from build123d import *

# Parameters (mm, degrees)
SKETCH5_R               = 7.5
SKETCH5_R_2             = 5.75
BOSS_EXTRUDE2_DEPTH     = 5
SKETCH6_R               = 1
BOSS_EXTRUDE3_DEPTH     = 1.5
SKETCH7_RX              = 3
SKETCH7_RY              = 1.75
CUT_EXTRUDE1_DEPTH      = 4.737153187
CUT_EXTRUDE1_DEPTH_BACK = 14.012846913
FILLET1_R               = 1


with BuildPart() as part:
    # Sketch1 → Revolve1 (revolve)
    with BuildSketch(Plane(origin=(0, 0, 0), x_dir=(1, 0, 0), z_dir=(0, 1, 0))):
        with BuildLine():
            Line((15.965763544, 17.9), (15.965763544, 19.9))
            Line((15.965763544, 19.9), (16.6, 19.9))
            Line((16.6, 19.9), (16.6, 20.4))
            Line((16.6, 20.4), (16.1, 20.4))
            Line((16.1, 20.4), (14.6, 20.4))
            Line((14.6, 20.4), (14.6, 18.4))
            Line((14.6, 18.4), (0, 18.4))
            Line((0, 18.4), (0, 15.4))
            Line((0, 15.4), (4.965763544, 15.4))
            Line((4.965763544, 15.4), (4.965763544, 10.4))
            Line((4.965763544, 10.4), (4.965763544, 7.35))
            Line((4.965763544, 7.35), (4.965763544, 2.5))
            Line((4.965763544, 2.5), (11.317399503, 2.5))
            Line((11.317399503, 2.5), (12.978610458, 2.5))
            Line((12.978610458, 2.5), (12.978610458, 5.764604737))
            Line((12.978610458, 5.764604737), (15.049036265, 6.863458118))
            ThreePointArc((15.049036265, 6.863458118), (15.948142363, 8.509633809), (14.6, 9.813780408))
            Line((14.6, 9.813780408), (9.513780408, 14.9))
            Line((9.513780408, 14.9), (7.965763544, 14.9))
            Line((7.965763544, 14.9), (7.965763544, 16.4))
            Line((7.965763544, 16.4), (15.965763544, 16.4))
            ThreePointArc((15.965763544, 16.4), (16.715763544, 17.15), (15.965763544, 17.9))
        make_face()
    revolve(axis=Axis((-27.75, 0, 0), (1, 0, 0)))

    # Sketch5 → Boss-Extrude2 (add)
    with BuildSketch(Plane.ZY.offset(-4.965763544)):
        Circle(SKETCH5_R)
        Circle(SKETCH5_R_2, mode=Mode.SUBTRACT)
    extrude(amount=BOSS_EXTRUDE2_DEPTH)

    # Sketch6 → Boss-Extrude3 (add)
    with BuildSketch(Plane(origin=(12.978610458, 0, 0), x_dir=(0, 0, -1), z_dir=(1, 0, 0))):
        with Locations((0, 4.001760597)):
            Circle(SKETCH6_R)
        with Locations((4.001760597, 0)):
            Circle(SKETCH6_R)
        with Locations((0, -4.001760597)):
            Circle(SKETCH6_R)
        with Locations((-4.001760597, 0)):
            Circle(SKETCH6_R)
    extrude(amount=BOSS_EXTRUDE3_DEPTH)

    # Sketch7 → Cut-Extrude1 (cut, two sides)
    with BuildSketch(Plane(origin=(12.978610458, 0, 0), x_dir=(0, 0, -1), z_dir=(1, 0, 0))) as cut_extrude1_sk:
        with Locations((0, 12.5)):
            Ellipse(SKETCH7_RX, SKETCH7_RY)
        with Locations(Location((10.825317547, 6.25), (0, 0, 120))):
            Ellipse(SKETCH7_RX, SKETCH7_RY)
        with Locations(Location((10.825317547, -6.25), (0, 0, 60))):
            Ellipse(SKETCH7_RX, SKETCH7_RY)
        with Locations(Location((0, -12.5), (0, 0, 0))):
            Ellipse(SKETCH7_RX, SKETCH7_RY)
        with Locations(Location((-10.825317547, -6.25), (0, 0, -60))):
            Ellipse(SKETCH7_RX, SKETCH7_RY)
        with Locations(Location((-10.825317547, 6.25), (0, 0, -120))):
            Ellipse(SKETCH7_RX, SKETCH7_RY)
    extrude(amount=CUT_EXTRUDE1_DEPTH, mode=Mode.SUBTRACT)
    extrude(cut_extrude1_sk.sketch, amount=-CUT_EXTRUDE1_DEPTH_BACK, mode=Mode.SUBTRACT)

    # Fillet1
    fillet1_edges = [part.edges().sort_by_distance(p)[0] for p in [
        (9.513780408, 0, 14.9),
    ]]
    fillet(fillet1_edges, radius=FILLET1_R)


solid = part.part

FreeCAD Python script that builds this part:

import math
import FreeCAD as App
import Part
import Sketcher

V = App.Vector
Q = App.Units.Quantity


def edges_at(feature, points):
    """Names of the edges that pass closest to the given points."""
    edges = feature.Shape.Edges
    near = lambda p: min(range(len(edges)), key=lambda i: edges[i].distToShape(Part.Vertex(*p))[0])
    return sorted({f"Edge{near(p) + 1}" for p in points})

doc = App.newDocument("Part")
params = doc.addObject("Spreadsheet::Sheet", "Params")
for row, (alias, value) in enumerate([
    ("sketch1_width", "2 mm"),
    ("sketch1_width2", "8 mm"),
    ("sketch1_height", "3 mm"),
    ("sketch1_radius", "0.75 mm"),
    ("sketch1_width3", "14.6 mm"),
    ("revolution_angle", "360 deg"),
    ("sketch2_diameter", "15 mm"),
    ("sketch2_diameter2", "11.5 mm"),
    ("pad1_length", "5 mm"),
    ("sketch3_diameter", "2 mm"),
    ("pad2_length", "1.5 mm"),
    ("fillet_radius", "1 mm"),
], start=1):
    params.set(f"A{row}", alias)
    params.set(f"B{row}", "=" + value)
    params.setAlias(f"B{row}", alias)

body = doc.addObject("PartDesign::Body", "Body")

sketch1 = body.newObject("Sketcher::SketchObject", "Sketch")
sketch1.AttachmentSupport = (doc.getObject("XZ_Plane"), [""])
sketch1.MapMode = "FlatFace"
sketch1.addGeometry([
    Part.LineSegment(V(16, -17.9, 0), V(16, -19.9, 0)),
    Part.LineSegment(V(16, -19.9, 0), V(16.6, -19.9, 0)),
    Part.LineSegment(V(16.6, -19.9, 0), V(16.6, -20.4, 0)),
    Part.LineSegment(V(16.6, -20.4, 0), V(14.6, -20.4, 0)),
    Part.LineSegment(V(14.6, -20.4, 0), V(14.6, -18.4, 0)),
    Part.LineSegment(V(14.6, -18.4, 0), V(0, -18.4, 0)),
    Part.LineSegment(V(0, -18.4, 0), V(0, -15.4, 0)),
    Part.LineSegment(V(0, -15.4, 0), V(5, -15.4, 0)),
    Part.LineSegment(V(5, -15.4, 0), V(5, -2.5, 0)),
    Part.LineSegment(V(5, -2.5, 0), V(13, -2.5, 0)),
    Part.LineSegment(V(13, -2.5, 0), V(13, -5.8, 0)),
    Part.LineSegment(V(13, -5.8, 0), V(15, -6.9, 0)),
    Part.ArcOfCircle(Part.Circle(V(14.4, -8.3, 0), V(0, 0, 1), 1.5), math.radians(-83), math.radians(66)),
    Part.LineSegment(V(14.6, -9.8, 0), V(9.5, -14.9, 0)),
    Part.LineSegment(V(9.5, -14.9, 0), V(8, -14.9, 0)),
    Part.LineSegment(V(8, -14.9, 0), V(8, -16.4, 0)),
    Part.LineSegment(V(8, -16.4, 0), V(16, -16.4, 0)),
    Part.ArcOfCircle(Part.Circle(V(16, -17.1, 0), V(0, 0, 1), 0.8), math.radians(-90), math.radians(90)),
], False)
sketch1.addConstraint([
    Sketcher.Constraint("Coincident", 0, 2, 1, 1),
    Sketcher.Constraint("Coincident", 1, 2, 2, 1),
    Sketcher.Constraint("Coincident", 2, 2, 3, 1),
    Sketcher.Constraint("Coincident", 3, 2, 4, 1),
    Sketcher.Constraint("Coincident", 4, 2, 5, 1),
    Sketcher.Constraint("Coincident", 5, 2, 6, 1),
    Sketcher.Constraint("Coincident", 6, 2, 7, 1),
    Sketcher.Constraint("Coincident", 7, 2, 8, 1),
    Sketcher.Constraint("Coincident", 8, 2, 9, 1),
    Sketcher.Constraint("Coincident", 9, 2, 10, 1),
    Sketcher.Constraint("Coincident", 10, 2, 11, 1),
    Sketcher.Constraint("Coincident", 11, 2, 12, 2),
    Sketcher.Constraint("Coincident", 12, 1, 13, 1),
    Sketcher.Constraint("Coincident", 13, 2, 14, 1),
    Sketcher.Constraint("Coincident", 14, 2, 15, 1),
    Sketcher.Constraint("Coincident", 15, 2, 16, 1),
    Sketcher.Constraint("Tangent", 16, 2, 17, 2),
    Sketcher.Constraint("Coincident", 17, 1, 0, 1),
    Sketcher.Constraint("Vertical", 0),
    Sketcher.Constraint("Horizontal", 1),
    Sketcher.Constraint("Vertical", 2),
    Sketcher.Constraint("Horizontal", 3),
    Sketcher.Constraint("Vertical", 4),
    Sketcher.Constraint("Horizontal", 5),
    Sketcher.Constraint("Vertical", 6),
    Sketcher.Constraint("Horizontal", 7),
    Sketcher.Constraint("Vertical", 8),
    Sketcher.Constraint("Horizontal", 9),
    Sketcher.Constraint("Vertical", 10),
    Sketcher.Constraint("Horizontal", 14),
    Sketcher.Constraint("Vertical", 15),
    Sketcher.Constraint("Horizontal", 16),
    Sketcher.Constraint("PointOnObject", 5, 2, -2),
    Sketcher.Constraint("Vertical", 17, 3, 0, 2),
    Sketcher.Constraint("Vertical", 4, 2, 12, 1),
    Sketcher.Constraint("Equal", 3, 0),
    Sketcher.Constraint("Equal", 0, 4),
    Sketcher.Constraint("DistanceX", 3, 2, 3, 1, 2.0),
    Sketcher.Constraint("DistanceX", 16, 1, 16, 2, 8.0),
    Sketcher.Constraint("DistanceY", 6, 1, 6, 2, 3.0),
    Sketcher.Constraint("Angle", 13, Q("-135 deg")),
    Sketcher.Constraint("Radius", 17, 0.75),
    Sketcher.Constraint("DistanceX", 5, 2, 5, 1, 14.6),
    Sketcher.Constraint("DistanceY", 2, 2, 2, 1, 0.5),
    Sketcher.Constraint("DistanceY", 8, 1, 8, 2, 12.9),
    Sketcher.Constraint("DistanceY", 15, 2, 15, 1, 1.5),
    Sketcher.Constraint("DistanceX", 7, 2, 17, 3, 11.0),
    Sketcher.Constraint("DistanceY", 0, 2, -1, 1, 19.9),
    Sketcher.Constraint("Distance", 13, 7.193001),
    Sketcher.Constraint("Radius", 12, 1.547773),
    Sketcher.Constraint("Distance", 11, 2.343959),
    Sketcher.Constraint("DistanceX", 1, 1, 1, 2, 0.634236),
    Sketcher.Constraint("DistanceX", 9, 1, 9, 2, 8.012847),
    Sketcher.Constraint("DistanceY", 10, 2, 10, 1, 3.264605),
    Sketcher.Constraint("DistanceX", -1, 1, 12, 3, 14.41799),
])
sketch1.setExpression("Constraints[37]", "Params.sketch1_width")
sketch1.setExpression("Constraints[38]", "Params.sketch1_width2")
sketch1.setExpression("Constraints[39]", "Params.sketch1_height")
sketch1.setExpression("Constraints[41]", "Params.sketch1_radius")
sketch1.setExpression("Constraints[42]", "Params.sketch1_width3")
revolution = body.newObject("PartDesign::Revolution", "Revolution")
revolution.Profile = sketch1
revolution.ReferenceAxis = (sketch1, ["H_Axis"])
revolution.setExpression("Angle", "Params.revolution_angle")

sketch2 = body.newObject("Sketcher::SketchObject", "Sketch001")
sketch2.AttachmentSupport = (doc.getObject("YZ_Plane"), [""])
sketch2.MapMode = "FlatFace"
sketch2.AttachmentOffset = App.Placement(V(0, 0, 4.965764), App.Rotation())
sketch2.addGeometry([
    Part.Circle(V(0, 0, 0), V(0, 0, 1), 8),
    Part.Circle(V(0, 0, 0), V(0, 0, 1), 6),
], False)
sketch2.addConstraint([
    Sketcher.Constraint("Coincident", 0, 3, -1, 1),
    Sketcher.Constraint("Coincident", 1, 3, -1, 1),
    Sketcher.Constraint("Diameter", 0, 15.0),
    Sketcher.Constraint("Diameter", 1, 11.5),
])
sketch2.setExpression("Constraints[2]", "Params.sketch2_diameter")
sketch2.setExpression("Constraints[3]", "Params.sketch2_diameter2")
pad1 = body.newObject("PartDesign::Pad", "Pad")
pad1.Profile = sketch2
pad1.setExpression("Length", "Params.pad1_length")
pad1.Reversed = True

sketch3 = body.newObject("Sketcher::SketchObject", "Sketch002")
sketch3.AttachmentSupport = (doc.getObject("YZ_Plane"), [""])
sketch3.MapMode = "FlatFace"
sketch3.AttachmentOffset = App.Placement(V(0, 0, 12.97861), App.Rotation())
sketch3.addGeometry([
    Part.Circle(V(4, 0, 0), V(0, 0, 1), 1),
    Part.Circle(V(0, -4, 0), V(0, 0, 1), 1),
    Part.Circle(V(-4, 0, 0), V(0, 0, 1), 1),
    Part.Circle(V(0, 4, 0), V(0, 0, 1), 1),
], False)
sketch3.addConstraint([
    Sketcher.Constraint("Equal", 0, 1),
    Sketcher.Constraint("Equal", 1, 2),
    Sketcher.Constraint("Equal", 2, 3),
    Sketcher.Constraint("Symmetric", 0, 3, 2, 3, -1, 1),
    Sketcher.Constraint("Symmetric", 1, 3, 3, 3, -1, 1),
    Sketcher.Constraint("PointOnObject", 0, 3, -1),
    Sketcher.Constraint("PointOnObject", 1, 3, -2),
    Sketcher.Constraint("Diameter", 0, 2.0),
    Sketcher.Constraint("DistanceX", -1, 1, 0, 3, 4.001761),
    Sketcher.Constraint("DistanceY", 1, 3, -1, 1, 4.001761),
])
sketch3.setExpression("Constraints[7]", "Params.sketch3_diameter")
pad2 = body.newObject("PartDesign::Pad", "Pad001")
pad2.Profile = sketch3
pad2.setExpression("Length", "Params.pad2_length")

sketch4 = body.newObject("Sketcher::SketchObject", "Sketch003")
sketch4.AttachmentSupport = (doc.getObject("YZ_Plane"), [""])
sketch4.MapMode = "FlatFace"
sketch4.AttachmentOffset = App.Placement(V(0, 0, 12.97861), App.Rotation())
sketch4.addGeometry([
    Part.Ellipse(V(12.5, -3, 0), V(14.25, 0, 0), V(12.5, 0, 0)),
    Part.Ellipse(V(8.848076, -9.325318, 0), V(5.375, -9.309773, 0), V(6.25, -10.825318, 0)),
    Part.Ellipse(V(-3.651924, -12.325318, 0), V(-5.375, -9.309773, 0), V(-6.25, -10.825318, 0)),
    Part.Ellipse(V(-12.5, -3, 0), V(-10.75, 0, 0), V(-12.5, 0, 0)),
    Part.Ellipse(V(-8.848076, 9.325318, 0), V(-5.375, 9.309773, 0), V(-6.25, 10.825318, 0)),
    Part.Ellipse(V(3.651924, 12.325318, 0), V(5.375, 9.309773, 0), V(6.25, 10.825318, 0)),
], False)
sketch4.addConstraint([
    Sketcher.Constraint("Block", 0),
    Sketcher.Constraint("Block", 1),
    Sketcher.Constraint("Block", 2),
    Sketcher.Constraint("Block", 3),
    Sketcher.Constraint("Block", 4),
    Sketcher.Constraint("Block", 5),
])
pocket1 = body.newObject("PartDesign::Pocket", "Pocket")
pocket1.Profile = sketch4
pocket1.Type = "ThroughAll"
pocket1.Midplane = True
doc.recompute()

fillet = body.newObject("PartDesign::Fillet", "Fillet")
fillet.Base = (pocket1, edges_at(pocket1, [(9.514, 0, 14.9)]))
fillet.setExpression("Radius", "Params.fillet_radius")

doc.recompute()
